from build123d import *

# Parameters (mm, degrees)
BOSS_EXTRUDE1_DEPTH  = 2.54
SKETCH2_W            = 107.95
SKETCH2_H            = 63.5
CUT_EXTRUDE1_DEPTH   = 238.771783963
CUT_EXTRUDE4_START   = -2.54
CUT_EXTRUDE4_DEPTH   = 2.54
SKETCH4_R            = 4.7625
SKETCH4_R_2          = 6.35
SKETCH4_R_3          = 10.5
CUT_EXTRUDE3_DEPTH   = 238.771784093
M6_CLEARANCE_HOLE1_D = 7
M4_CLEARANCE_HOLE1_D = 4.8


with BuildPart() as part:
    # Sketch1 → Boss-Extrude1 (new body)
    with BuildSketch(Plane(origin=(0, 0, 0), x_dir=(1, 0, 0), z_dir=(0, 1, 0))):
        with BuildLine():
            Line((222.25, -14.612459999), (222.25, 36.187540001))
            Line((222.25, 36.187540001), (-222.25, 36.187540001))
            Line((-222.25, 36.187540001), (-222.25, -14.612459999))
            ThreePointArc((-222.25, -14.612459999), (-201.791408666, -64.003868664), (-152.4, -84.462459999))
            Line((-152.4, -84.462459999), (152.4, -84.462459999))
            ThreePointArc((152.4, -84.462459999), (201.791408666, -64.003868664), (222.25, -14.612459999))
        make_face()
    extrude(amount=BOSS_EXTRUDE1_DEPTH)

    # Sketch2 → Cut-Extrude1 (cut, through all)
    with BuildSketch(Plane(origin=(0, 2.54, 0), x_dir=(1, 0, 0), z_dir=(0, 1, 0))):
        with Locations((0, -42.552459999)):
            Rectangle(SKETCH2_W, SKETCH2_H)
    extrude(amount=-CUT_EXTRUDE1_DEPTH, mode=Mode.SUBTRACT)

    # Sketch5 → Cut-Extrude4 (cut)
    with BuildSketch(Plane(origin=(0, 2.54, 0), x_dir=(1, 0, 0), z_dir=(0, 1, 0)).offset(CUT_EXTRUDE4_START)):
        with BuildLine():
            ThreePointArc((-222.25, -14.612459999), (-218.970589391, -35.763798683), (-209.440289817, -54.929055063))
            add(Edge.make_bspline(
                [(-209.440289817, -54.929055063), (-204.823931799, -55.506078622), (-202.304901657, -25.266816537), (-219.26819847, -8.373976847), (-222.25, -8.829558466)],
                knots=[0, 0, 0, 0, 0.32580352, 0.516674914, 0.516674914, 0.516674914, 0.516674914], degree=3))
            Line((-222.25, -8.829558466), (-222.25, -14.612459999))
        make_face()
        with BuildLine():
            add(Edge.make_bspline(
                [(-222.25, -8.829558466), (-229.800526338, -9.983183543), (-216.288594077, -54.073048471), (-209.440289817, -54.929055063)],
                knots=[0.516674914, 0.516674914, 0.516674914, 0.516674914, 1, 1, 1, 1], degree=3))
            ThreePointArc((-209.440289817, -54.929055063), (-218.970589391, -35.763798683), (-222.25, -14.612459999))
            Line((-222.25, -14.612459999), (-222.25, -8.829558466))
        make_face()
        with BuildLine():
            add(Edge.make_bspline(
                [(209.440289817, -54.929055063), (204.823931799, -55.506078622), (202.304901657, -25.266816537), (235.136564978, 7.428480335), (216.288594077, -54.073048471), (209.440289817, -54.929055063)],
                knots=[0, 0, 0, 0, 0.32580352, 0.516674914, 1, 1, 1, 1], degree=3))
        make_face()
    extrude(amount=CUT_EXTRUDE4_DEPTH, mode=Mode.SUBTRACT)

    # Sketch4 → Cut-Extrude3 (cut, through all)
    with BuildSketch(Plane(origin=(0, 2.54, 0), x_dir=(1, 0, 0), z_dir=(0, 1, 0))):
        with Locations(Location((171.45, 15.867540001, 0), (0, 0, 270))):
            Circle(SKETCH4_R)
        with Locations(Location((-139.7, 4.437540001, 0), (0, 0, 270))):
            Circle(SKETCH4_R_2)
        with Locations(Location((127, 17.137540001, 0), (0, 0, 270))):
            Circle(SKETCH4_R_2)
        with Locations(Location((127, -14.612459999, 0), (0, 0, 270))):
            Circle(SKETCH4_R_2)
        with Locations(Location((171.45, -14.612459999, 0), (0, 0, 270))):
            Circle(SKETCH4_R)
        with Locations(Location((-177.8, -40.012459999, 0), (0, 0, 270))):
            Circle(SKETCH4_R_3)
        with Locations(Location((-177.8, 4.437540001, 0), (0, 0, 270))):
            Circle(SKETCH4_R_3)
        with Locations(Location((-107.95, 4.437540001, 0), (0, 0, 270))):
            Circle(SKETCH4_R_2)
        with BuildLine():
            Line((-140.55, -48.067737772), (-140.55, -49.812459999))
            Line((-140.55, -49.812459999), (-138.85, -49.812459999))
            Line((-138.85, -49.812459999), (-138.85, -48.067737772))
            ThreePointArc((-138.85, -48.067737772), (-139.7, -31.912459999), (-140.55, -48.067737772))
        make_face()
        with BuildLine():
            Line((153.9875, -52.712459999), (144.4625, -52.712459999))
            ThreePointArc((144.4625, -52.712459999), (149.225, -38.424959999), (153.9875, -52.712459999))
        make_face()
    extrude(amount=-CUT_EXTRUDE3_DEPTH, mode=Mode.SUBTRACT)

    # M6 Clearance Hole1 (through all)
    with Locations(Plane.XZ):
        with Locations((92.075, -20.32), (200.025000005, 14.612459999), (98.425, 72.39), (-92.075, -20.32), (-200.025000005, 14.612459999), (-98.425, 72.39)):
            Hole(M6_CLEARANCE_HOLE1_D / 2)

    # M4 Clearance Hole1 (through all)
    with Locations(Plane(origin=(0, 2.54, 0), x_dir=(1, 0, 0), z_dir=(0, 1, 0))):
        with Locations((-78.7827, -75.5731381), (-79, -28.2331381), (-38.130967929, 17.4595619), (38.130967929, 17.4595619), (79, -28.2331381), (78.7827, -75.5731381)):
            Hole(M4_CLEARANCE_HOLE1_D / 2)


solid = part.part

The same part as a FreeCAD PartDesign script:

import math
import FreeCAD as App
import Part
import Sketcher

V = App.Vector
Q = App.Units.Quantity

doc = App.newDocument("Part")
body = doc.addObject("PartDesign::Body", "Body")

# Sketch on XZ plane
sketch1 = body.newObject("Sketcher::SketchObject", "Sketch")
sketch1.AttachmentSupport = (doc.getObject("XZ_Plane"), [""])
sketch1.MapMode = "FlatFace"
sketch1.addGeometry([
    Part.LineSegment(V(222, 15, 0), V(222, -36, 0)),  # 0
    Part.LineSegment(V(222, -36, 0), V(-222, -36, 0)),  # 1
    Part.LineSegment(V(-222, -36, 0), V(-222, 15, 0)),  # 2
    Part.ArcOfCircle(Part.Circle(V(-152, 15, 0), V(0, 0, 1), 70), math.radians(90), math.radians(180)),  # 3
    Part.LineSegment(V(-152, 84, 0), V(152, 84, 0)),  # 4
    Part.ArcOfCircle(Part.Circle(V(152, 15, 0), V(0, 0, 1), 70), math.radians(0), math.radians(90)),  # 5
], False)
sketch1.addConstraint([
    Sketcher.Constraint("Coincident", 0, 2, 1, 1),
    Sketcher.Constraint("Coincident", 1, 2, 2, 1),
    Sketcher.Constraint("Tangent", 2, 2, 3, 2),
    Sketcher.Constraint("Tangent", 3, 1, 4, 1),
    Sketcher.Constraint("Tangent", 4, 2, 5, 2),
    Sketcher.Constraint("Tangent", 5, 1, 0, 1),
    Sketcher.Constraint("Vertical", 0),
    Sketcher.Constraint("Horizontal", 1),
    Sketcher.Constraint("Vertical", 2),
    Sketcher.Constraint("Horizontal", 4),
    Sketcher.Constraint("Equal", 3, 5),
    Sketcher.Constraint("DistanceX", 4, 1, 4, 2, Q("12 in")),
    Sketcher.Constraint("DistanceY", 0, 2, 0, 1, Q("2 in")),
    Sketcher.Constraint("Radius", 3, Q("2.75 in")),
    Sketcher.Constraint("DistanceX", 3, 3, -1, 1, Q("6 in")),
    Sketcher.Constraint("DistanceY", -1, 1, 3, 3, 14.61246),
])
pad1 = body.newObject("PartDesign::Pad", "Pad")
pad1.Profile = sketch1
pad1.Length = Q("0.1 in")
pad1.Reversed = True

# Sketch on XZ plane
sketch2 = body.newObject("Sketcher::SketchObject", "Sketch001")
sketch2.AttachmentSupport = (doc.getObject("XZ_Plane"), [""])
sketch2.MapMode = "FlatFace"
sketch2.AttachmentOffset = App.Placement(V(0, 0, -0.1 * 25.4), App.Rotation())
sketch2.addGeometry([
    Part.LineSegment(V(-54, 11, 0), V(-54, 74, 0)),
    Part.LineSegment(V(-54, 74, 0), V(54, 74, 0)),
    Part.LineSegment(V(54, 74, 0), V(54, 11, 0)),
    Part.LineSegment(V(54, 11, 0), V(-54, 11, 0)),
], False)
sketch2.addConstraint([
    Sketcher.Constraint("Coincident", 0, 2, 1, 1),
    Sketcher.Constraint("Coincident", 1, 2, 2, 1),
    Sketcher.Constraint("Coincident", 2, 2, 3, 1),
    Sketcher.Constraint("Coincident", 3, 2, 0, 1),
    Sketcher.Constraint("Vertical", 0),
    Sketcher.Constraint("Horizontal", 1),
    Sketcher.Constraint("Vertical", 2),
    Sketcher.Constraint("Horizontal", 3),
    Sketcher.Constraint("DistanceY", 0, 1, 0, 2, Q("2.5 in")),
    Sketcher.Constraint("DistanceX", 1, 1, 1, 2, Q("4.25 in")),
    Sketcher.Constraint("DistanceX", 0, 2, -1, 1, Q("2.125 in")),
    Sketcher.Constraint("DistanceY", -1, 1, 0, 2, 74.30246),
])
pocket1 = body.newObject("PartDesign::Pocket", "Pocket")
pocket1.Profile = sketch2
pocket1.Type = "ThroughAll"
pocket1.Reversed = True

# Sketch on XZ plane
sketch3 = body.newObject("Sketcher::SketchObject", "Sketch002")
sketch3.AttachmentSupport = (doc.getObject("XZ_Plane"), [""])
sketch3.MapMode = "FlatFace"
sketch3.addGeometry([
    Part.BSplineCurve([V(-209.44029, 54.929055, 0), V(-204.823932, 55.506079, 0), V(-202.304902, 25.266817, 0), V(-219.268198, 8.373977, 0), V(-222.25, 8.829558, 0)], [4, 1, 4], [0, 0.32580352, 0.516674914], False, 3, [1, 1, 1, 1, 1], False),
    Part.BSplineCurve([V(-222.25, 8.829558, 0), V(-229.800526, 9.983184, 0), V(-216.288594, 54.073048, 0), V(-209.44029, 54.929055, 0)], [4, 4], [0.516674914, 1], False, 3, [1, 1, 1, 1], False),
    Part.BSplineCurve([V(209.44029, 54.929055, 0), V(204.823932, 55.506079, 0), V(202.304902, 25.266817, 0), V(235.136565, -7.42848, 0), V(216.288594, 54.073048, 0), V(209.44029, 54.929055, 0)], [4, 1, 1, 4], [0, 0.32580352, 0.516674914, 1], False, 3, [1, 1, 1, 1, 1, 1], False),
], False)
sketch3.addConstraint([
    Sketcher.Constraint("Block", 0),
    Sketcher.Constraint("Block", 1),
    Sketcher.Constraint("Block", 2),
])
pocket2 = body.newObject("PartDesign::Pocket", "Pocket001")
pocket2.Profile = sketch3
pocket2.Length = Q("0.1 in")

# Sketch on XZ plane
sketch4 = body.newObject("Sketcher::SketchObject", "Sketch003")
sketch4.AttachmentSupport = (doc.getObject("XZ_Plane"), [""])
sketch4.MapMode = "FlatFace"
sketch4.AttachmentOffset = App.Placement(V(0, 0, -0.1 * 25.4), App.Rotation())
sketch4.addGeometry([
    Part.Circle(V(171.4, -15.9, 0), V(0, 0, 1), 4.8),  # 0
    Part.Circle(V(-139.7, -4.4, 0), V(0, 0, 1), 6.3),  # 1
    Part.Circle(V(127, -17.1, 0), V(0, 0, 1), 6.3),  # 2
    Part.Circle(V(127, 14.6, 0), V(0, 0, 1), 6.3),  # 3
    Part.Circle(V(171.4, 14.6, 0), V(0, 0, 1), 4.8),  # 4
    Part.Circle(V(-177.8, 40, 0), V(0, 0, 1), 10.5),  # 5
    Part.Circle(V(-177.8, -4.4, 0), V(0, 0, 1), 10.5),  # 6
    Part.Circle(V(-108, -4.4, 0), V(0, 0, 1), 6.3),  # 7
    Part.LineSegment(V(-140.6, 48.1, 0), V(-140.6, 49.8, 0)),  # 8
    Part.LineSegment(V(-140.6, 49.8, 0), V(-138.8, 49.8, 0)),  # 9
    Part.LineSegment(V(-138.8, 49.8, 0), V(-138.8, 48.1, 0)),  # 10
    Part.ArcOfCircle(Part.Circle(V(-139.7, 40, 0), V(0, 0, 1), 8.1), math.radians(96), math.radians(444)),  # 11
    Part.LineSegment(V(144.5, 52.7, 0), V(154, 52.7, 0)),  # 12
    Part.ArcOfCircle(Part.Circle(V(149.2, 46.4, 0), V(0, 0, 1), 7.9), math.radians(127), math.radians(413)),  # 13
], False)
sketch4.addConstraint([
    Sketcher.Constraint("Coincident", 8, 2, 9, 1),
    Sketcher.Constraint("Coincident", 9, 2, 10, 1),
    Sketcher.Constraint("Coincident", 10, 2, 11, 2),
    Sketcher.Constraint("Coincident", 11, 1, 8, 1),
    Sketcher.Constraint("Coincident", 12, 1, 13, 1),
    Sketcher.Constraint("Coincident", 13, 2, 12, 2),
    Sketcher.Constraint("Vertical", 8),
    Sketcher.Constraint("Horizontal", 9),
    Sketcher.Constraint("Vertical", 10),
    Sketcher.Constraint("Horizontal", 12),
    Sketcher.Constraint("Equal", 1, 2),
    Sketcher.Constraint("Equal", 2, 3),
    Sketcher.Constraint("Equal", 0, 4),
    Sketcher.Constraint("Equal", 5, 6),
    Sketcher.Constraint("Equal", 3, 7),
    Sketcher.Constraint("Horizontal", 3, 3, 4, 3),
    Sketcher.Constraint("Horizontal", 1, 3, 6, 3),
    Sketcher.Constraint("Horizontal", 6, 3, 7, 3),
    Sketcher.Constraint("Horizontal", 5, 3, 11, 3),
    Sketcher.Constraint("Horizontal", 10, 2, 11, 1),
    Sketcher.Constraint("Vertical", 2, 3, 3, 3),
    Sketcher.Constraint("Vertical", 0, 3, 4, 3),
    Sketcher.Constraint("Vertical", 5, 3, 6, 3),
    Sketcher.Constraint("Vertical", 1, 3, 11, 3),
    Sketcher.Constraint("Diameter", 1, Q("0.5 in")),
    Sketcher.Constraint("Diameter", 0, Q("0.375 in")),
    Sketcher.Constraint("DistanceX", -1, 1, 2, 3, Q("5 in")),
    Sketcher.Constraint("DistanceX", 5, 3, -1, 1, Q("7 in")),
    Sketcher.Constraint("Radius", 13, Q("0.3125 in")),
    Sketcher.Constraint("DistanceY", 3, 3, 5, 3, Q("1 in")),
    Sketcher.Constraint("DistanceY", 7, 3, 13, 3, Q("2 in")),
    Sketcher.Constraint("DistanceX", 1, 3, -1, 1, Q("5.5 in")),
    Sketcher.Constraint("DistanceY", 2, 3, 1, 3, Q("0.5 in")),
    Sketcher.Constraint("DistanceY", 0, 3, 3, 3, Q("1.2 in")),
    Sketcher.Constraint("DistanceY", 3, 3, 12, 1, Q("1.5 in")),
    Sketcher.Constraint("Diameter", 5, 21.0),
    Sketcher.Constraint("DistanceX", 12, 1, 12, 2, Q("0.375 in")),
    Sketcher.Constraint("DistanceX", -1, 1, 0, 3, Q("6.75 in")),
    Sketcher.Constraint("DistanceX", 7, 3, -1, 1, Q("4.25 in")),
    Sketcher.Constraint("Radius", 11, 8.1),
    Sketcher.Constraint("DistanceX", -1, 1, 13, 3, Q("5.875 in")),
    Sketcher.Constraint("DistanceX", 9, 1, 9, 2, 1.7),
    Sketcher.Constraint("DistanceY", 11, 3, 8, 2, 9.8),
    Sketcher.Constraint("DistanceY", 0, 3, -1, 1, 15.86754),
])
pocket3 = body.newObject("PartDesign::Pocket", "Pocket002")
pocket3.Profile = sketch4
pocket3.Type = "ThroughAll"
pocket3.Reversed = True

# Sketch on XZ plane
sketch5 = body.newObject("Sketcher::SketchObject", "Sketch004")
sketch5.AttachmentSupport = (doc.getObject("XZ_Plane"), [""])
sketch5.MapMode = "FlatFace"
sketch5.addGeometry([
    Part.Circle(V(92.1, -20.3, 0), V(0, 0, 1), 3.5),  # 0
    Part.Circle(V(200, 14.6, 0), V(0, 0, 1), 3.5),  # 1
    Part.Circle(V(98.4, 72.4, 0), V(0, 0, 1), 3.5),  # 2
    Part.Circle(V(-92.1, -20.3, 0), V(0, 0, 1), 3.5),  # 3
    Part.Circle(V(-200, 14.6, 0), V(0, 0, 1), 3.5),  # 4
    Part.Circle(V(-98.4, 72.4, 0), V(0, 0, 1), 3.5),  # 5
], False)
sketch5.addConstraint([
    Sketcher.Constraint("Equal", 0, 1),
    Sketcher.Constraint("Equal", 1, 2),
    Sketcher.Constraint("Equal", 2, 3),
    Sketcher.Constraint("Equal", 3, 4),
    Sketcher.Constraint("Equal", 4, 5),
    Sketcher.Constraint("Symmetric", 0, 3, 3, 3, -2),
    Sketcher.Constraint("Symmetric", 1, 3, 4, 3, -2),
    Sketcher.Constraint("Symmetric", 2, 3, 5, 3, -2),
    Sketcher.Constraint("DistanceX", 2, 3, 1, 3, Q("4 in")),
    Sketcher.Constraint("DistanceY", 0, 3, -1, 1, Q("0.8 in")),
    Sketcher.Constraint("DistanceX", 3, 3, 2, 3, Q("7.5 in")),
    Sketcher.Constraint("Diameter", 0, 7.0),
    Sketcher.Constraint("DistanceY", -1, 1, 2, 3, Q("2.85 in")),
    Sketcher.Constraint("DistanceX", 0, 3, 1, 3, Q("4.25 in")),
    Sketcher.Constraint("DistanceY", -1, 1, 1, 3, 14.61246),
])
doc.recompute()
hole = body.newObject("PartDesign::Hole", "Hole")
hole.Profile = sketch5
hole.ThreadType = "None"
hole.Diameter = 7
hole.DepthType = "ThroughAll"

# Sketch on XZ plane
sketch6 = body.newObject("Sketcher::SketchObject", "Sketch005")
sketch6.AttachmentSupport = (doc.getObject("XZ_Plane"), [""])
sketch6.MapMode = "FlatFace"
sketch6.AttachmentOffset = App.Placement(V(0, 0, -0.1 * 25.4), App.Rotation())
sketch6.addGeometry([
    Part.Circle(V(-78.8, 75.6, 0), V(0, 0, 1), 2.4),  # 0
    Part.Circle(V(-79, 28.2, 0), V(0, 0, 1), 2.4),  # 1
    Part.Circle(V(-38.1, -17.5, 0), V(0, 0, 1), 2.4),  # 2
    Part.Circle(V(38.1, -17.5, 0), V(0, 0, 1), 2.4),  # 3
    Part.Circle(V(79, 28.2, 0), V(0, 0, 1), 2.4),  # 4
    Part.Circle(V(78.8, 75.6, 0), V(0, 0, 1), 2.4),  # 5
], False)
sketch6.addConstraint([
    Sketcher.Constraint("Equal", 0, 1),
    Sketcher.Constraint("Equal", 1, 2),
    Sketcher.Constraint("Equal", 2, 3),
    Sketcher.Constraint("Equal", 3, 4),
    Sketcher.Constraint("Equal", 4, 5),
    Sketcher.Constraint("Symmetric", 2, 3, 3, 3, -2),
    Sketcher.Constraint("Symmetric", 1, 3, 4, 3, -2),
    Sketcher.Constraint("Symmetric", 0, 3, 5, 3, -2),
    Sketcher.Constraint("Diameter", 0, 4.8),
    Sketcher.Constraint("DistanceX", 0, 3, -1, 1, 78.7827),
    Sketcher.Constraint("DistanceX", 1, 3, -1, 1, 79.0),
    Sketcher.Constraint("DistanceY", 1, 3, 0, 3, 47.34),
    Sketcher.Constraint("DistanceY", 2, 3, 1, 3, 45.6927),
    Sketcher.Constraint("DistanceY", -1, 1, 0, 3, 75.573138),
    Sketcher.Constraint("DistanceX", 2, 3, -1, 1, 38.130968),
])
doc.recompute()
hole2 = body.newObject("PartDesign::Hole", "Hole001")
hole2.Profile = sketch6
hole2.ThreadType = "None"
hole2.Diameter = 4.8
hole2.DepthType = "ThroughAll"
hole2.Reversed = True

doc.recompute()
